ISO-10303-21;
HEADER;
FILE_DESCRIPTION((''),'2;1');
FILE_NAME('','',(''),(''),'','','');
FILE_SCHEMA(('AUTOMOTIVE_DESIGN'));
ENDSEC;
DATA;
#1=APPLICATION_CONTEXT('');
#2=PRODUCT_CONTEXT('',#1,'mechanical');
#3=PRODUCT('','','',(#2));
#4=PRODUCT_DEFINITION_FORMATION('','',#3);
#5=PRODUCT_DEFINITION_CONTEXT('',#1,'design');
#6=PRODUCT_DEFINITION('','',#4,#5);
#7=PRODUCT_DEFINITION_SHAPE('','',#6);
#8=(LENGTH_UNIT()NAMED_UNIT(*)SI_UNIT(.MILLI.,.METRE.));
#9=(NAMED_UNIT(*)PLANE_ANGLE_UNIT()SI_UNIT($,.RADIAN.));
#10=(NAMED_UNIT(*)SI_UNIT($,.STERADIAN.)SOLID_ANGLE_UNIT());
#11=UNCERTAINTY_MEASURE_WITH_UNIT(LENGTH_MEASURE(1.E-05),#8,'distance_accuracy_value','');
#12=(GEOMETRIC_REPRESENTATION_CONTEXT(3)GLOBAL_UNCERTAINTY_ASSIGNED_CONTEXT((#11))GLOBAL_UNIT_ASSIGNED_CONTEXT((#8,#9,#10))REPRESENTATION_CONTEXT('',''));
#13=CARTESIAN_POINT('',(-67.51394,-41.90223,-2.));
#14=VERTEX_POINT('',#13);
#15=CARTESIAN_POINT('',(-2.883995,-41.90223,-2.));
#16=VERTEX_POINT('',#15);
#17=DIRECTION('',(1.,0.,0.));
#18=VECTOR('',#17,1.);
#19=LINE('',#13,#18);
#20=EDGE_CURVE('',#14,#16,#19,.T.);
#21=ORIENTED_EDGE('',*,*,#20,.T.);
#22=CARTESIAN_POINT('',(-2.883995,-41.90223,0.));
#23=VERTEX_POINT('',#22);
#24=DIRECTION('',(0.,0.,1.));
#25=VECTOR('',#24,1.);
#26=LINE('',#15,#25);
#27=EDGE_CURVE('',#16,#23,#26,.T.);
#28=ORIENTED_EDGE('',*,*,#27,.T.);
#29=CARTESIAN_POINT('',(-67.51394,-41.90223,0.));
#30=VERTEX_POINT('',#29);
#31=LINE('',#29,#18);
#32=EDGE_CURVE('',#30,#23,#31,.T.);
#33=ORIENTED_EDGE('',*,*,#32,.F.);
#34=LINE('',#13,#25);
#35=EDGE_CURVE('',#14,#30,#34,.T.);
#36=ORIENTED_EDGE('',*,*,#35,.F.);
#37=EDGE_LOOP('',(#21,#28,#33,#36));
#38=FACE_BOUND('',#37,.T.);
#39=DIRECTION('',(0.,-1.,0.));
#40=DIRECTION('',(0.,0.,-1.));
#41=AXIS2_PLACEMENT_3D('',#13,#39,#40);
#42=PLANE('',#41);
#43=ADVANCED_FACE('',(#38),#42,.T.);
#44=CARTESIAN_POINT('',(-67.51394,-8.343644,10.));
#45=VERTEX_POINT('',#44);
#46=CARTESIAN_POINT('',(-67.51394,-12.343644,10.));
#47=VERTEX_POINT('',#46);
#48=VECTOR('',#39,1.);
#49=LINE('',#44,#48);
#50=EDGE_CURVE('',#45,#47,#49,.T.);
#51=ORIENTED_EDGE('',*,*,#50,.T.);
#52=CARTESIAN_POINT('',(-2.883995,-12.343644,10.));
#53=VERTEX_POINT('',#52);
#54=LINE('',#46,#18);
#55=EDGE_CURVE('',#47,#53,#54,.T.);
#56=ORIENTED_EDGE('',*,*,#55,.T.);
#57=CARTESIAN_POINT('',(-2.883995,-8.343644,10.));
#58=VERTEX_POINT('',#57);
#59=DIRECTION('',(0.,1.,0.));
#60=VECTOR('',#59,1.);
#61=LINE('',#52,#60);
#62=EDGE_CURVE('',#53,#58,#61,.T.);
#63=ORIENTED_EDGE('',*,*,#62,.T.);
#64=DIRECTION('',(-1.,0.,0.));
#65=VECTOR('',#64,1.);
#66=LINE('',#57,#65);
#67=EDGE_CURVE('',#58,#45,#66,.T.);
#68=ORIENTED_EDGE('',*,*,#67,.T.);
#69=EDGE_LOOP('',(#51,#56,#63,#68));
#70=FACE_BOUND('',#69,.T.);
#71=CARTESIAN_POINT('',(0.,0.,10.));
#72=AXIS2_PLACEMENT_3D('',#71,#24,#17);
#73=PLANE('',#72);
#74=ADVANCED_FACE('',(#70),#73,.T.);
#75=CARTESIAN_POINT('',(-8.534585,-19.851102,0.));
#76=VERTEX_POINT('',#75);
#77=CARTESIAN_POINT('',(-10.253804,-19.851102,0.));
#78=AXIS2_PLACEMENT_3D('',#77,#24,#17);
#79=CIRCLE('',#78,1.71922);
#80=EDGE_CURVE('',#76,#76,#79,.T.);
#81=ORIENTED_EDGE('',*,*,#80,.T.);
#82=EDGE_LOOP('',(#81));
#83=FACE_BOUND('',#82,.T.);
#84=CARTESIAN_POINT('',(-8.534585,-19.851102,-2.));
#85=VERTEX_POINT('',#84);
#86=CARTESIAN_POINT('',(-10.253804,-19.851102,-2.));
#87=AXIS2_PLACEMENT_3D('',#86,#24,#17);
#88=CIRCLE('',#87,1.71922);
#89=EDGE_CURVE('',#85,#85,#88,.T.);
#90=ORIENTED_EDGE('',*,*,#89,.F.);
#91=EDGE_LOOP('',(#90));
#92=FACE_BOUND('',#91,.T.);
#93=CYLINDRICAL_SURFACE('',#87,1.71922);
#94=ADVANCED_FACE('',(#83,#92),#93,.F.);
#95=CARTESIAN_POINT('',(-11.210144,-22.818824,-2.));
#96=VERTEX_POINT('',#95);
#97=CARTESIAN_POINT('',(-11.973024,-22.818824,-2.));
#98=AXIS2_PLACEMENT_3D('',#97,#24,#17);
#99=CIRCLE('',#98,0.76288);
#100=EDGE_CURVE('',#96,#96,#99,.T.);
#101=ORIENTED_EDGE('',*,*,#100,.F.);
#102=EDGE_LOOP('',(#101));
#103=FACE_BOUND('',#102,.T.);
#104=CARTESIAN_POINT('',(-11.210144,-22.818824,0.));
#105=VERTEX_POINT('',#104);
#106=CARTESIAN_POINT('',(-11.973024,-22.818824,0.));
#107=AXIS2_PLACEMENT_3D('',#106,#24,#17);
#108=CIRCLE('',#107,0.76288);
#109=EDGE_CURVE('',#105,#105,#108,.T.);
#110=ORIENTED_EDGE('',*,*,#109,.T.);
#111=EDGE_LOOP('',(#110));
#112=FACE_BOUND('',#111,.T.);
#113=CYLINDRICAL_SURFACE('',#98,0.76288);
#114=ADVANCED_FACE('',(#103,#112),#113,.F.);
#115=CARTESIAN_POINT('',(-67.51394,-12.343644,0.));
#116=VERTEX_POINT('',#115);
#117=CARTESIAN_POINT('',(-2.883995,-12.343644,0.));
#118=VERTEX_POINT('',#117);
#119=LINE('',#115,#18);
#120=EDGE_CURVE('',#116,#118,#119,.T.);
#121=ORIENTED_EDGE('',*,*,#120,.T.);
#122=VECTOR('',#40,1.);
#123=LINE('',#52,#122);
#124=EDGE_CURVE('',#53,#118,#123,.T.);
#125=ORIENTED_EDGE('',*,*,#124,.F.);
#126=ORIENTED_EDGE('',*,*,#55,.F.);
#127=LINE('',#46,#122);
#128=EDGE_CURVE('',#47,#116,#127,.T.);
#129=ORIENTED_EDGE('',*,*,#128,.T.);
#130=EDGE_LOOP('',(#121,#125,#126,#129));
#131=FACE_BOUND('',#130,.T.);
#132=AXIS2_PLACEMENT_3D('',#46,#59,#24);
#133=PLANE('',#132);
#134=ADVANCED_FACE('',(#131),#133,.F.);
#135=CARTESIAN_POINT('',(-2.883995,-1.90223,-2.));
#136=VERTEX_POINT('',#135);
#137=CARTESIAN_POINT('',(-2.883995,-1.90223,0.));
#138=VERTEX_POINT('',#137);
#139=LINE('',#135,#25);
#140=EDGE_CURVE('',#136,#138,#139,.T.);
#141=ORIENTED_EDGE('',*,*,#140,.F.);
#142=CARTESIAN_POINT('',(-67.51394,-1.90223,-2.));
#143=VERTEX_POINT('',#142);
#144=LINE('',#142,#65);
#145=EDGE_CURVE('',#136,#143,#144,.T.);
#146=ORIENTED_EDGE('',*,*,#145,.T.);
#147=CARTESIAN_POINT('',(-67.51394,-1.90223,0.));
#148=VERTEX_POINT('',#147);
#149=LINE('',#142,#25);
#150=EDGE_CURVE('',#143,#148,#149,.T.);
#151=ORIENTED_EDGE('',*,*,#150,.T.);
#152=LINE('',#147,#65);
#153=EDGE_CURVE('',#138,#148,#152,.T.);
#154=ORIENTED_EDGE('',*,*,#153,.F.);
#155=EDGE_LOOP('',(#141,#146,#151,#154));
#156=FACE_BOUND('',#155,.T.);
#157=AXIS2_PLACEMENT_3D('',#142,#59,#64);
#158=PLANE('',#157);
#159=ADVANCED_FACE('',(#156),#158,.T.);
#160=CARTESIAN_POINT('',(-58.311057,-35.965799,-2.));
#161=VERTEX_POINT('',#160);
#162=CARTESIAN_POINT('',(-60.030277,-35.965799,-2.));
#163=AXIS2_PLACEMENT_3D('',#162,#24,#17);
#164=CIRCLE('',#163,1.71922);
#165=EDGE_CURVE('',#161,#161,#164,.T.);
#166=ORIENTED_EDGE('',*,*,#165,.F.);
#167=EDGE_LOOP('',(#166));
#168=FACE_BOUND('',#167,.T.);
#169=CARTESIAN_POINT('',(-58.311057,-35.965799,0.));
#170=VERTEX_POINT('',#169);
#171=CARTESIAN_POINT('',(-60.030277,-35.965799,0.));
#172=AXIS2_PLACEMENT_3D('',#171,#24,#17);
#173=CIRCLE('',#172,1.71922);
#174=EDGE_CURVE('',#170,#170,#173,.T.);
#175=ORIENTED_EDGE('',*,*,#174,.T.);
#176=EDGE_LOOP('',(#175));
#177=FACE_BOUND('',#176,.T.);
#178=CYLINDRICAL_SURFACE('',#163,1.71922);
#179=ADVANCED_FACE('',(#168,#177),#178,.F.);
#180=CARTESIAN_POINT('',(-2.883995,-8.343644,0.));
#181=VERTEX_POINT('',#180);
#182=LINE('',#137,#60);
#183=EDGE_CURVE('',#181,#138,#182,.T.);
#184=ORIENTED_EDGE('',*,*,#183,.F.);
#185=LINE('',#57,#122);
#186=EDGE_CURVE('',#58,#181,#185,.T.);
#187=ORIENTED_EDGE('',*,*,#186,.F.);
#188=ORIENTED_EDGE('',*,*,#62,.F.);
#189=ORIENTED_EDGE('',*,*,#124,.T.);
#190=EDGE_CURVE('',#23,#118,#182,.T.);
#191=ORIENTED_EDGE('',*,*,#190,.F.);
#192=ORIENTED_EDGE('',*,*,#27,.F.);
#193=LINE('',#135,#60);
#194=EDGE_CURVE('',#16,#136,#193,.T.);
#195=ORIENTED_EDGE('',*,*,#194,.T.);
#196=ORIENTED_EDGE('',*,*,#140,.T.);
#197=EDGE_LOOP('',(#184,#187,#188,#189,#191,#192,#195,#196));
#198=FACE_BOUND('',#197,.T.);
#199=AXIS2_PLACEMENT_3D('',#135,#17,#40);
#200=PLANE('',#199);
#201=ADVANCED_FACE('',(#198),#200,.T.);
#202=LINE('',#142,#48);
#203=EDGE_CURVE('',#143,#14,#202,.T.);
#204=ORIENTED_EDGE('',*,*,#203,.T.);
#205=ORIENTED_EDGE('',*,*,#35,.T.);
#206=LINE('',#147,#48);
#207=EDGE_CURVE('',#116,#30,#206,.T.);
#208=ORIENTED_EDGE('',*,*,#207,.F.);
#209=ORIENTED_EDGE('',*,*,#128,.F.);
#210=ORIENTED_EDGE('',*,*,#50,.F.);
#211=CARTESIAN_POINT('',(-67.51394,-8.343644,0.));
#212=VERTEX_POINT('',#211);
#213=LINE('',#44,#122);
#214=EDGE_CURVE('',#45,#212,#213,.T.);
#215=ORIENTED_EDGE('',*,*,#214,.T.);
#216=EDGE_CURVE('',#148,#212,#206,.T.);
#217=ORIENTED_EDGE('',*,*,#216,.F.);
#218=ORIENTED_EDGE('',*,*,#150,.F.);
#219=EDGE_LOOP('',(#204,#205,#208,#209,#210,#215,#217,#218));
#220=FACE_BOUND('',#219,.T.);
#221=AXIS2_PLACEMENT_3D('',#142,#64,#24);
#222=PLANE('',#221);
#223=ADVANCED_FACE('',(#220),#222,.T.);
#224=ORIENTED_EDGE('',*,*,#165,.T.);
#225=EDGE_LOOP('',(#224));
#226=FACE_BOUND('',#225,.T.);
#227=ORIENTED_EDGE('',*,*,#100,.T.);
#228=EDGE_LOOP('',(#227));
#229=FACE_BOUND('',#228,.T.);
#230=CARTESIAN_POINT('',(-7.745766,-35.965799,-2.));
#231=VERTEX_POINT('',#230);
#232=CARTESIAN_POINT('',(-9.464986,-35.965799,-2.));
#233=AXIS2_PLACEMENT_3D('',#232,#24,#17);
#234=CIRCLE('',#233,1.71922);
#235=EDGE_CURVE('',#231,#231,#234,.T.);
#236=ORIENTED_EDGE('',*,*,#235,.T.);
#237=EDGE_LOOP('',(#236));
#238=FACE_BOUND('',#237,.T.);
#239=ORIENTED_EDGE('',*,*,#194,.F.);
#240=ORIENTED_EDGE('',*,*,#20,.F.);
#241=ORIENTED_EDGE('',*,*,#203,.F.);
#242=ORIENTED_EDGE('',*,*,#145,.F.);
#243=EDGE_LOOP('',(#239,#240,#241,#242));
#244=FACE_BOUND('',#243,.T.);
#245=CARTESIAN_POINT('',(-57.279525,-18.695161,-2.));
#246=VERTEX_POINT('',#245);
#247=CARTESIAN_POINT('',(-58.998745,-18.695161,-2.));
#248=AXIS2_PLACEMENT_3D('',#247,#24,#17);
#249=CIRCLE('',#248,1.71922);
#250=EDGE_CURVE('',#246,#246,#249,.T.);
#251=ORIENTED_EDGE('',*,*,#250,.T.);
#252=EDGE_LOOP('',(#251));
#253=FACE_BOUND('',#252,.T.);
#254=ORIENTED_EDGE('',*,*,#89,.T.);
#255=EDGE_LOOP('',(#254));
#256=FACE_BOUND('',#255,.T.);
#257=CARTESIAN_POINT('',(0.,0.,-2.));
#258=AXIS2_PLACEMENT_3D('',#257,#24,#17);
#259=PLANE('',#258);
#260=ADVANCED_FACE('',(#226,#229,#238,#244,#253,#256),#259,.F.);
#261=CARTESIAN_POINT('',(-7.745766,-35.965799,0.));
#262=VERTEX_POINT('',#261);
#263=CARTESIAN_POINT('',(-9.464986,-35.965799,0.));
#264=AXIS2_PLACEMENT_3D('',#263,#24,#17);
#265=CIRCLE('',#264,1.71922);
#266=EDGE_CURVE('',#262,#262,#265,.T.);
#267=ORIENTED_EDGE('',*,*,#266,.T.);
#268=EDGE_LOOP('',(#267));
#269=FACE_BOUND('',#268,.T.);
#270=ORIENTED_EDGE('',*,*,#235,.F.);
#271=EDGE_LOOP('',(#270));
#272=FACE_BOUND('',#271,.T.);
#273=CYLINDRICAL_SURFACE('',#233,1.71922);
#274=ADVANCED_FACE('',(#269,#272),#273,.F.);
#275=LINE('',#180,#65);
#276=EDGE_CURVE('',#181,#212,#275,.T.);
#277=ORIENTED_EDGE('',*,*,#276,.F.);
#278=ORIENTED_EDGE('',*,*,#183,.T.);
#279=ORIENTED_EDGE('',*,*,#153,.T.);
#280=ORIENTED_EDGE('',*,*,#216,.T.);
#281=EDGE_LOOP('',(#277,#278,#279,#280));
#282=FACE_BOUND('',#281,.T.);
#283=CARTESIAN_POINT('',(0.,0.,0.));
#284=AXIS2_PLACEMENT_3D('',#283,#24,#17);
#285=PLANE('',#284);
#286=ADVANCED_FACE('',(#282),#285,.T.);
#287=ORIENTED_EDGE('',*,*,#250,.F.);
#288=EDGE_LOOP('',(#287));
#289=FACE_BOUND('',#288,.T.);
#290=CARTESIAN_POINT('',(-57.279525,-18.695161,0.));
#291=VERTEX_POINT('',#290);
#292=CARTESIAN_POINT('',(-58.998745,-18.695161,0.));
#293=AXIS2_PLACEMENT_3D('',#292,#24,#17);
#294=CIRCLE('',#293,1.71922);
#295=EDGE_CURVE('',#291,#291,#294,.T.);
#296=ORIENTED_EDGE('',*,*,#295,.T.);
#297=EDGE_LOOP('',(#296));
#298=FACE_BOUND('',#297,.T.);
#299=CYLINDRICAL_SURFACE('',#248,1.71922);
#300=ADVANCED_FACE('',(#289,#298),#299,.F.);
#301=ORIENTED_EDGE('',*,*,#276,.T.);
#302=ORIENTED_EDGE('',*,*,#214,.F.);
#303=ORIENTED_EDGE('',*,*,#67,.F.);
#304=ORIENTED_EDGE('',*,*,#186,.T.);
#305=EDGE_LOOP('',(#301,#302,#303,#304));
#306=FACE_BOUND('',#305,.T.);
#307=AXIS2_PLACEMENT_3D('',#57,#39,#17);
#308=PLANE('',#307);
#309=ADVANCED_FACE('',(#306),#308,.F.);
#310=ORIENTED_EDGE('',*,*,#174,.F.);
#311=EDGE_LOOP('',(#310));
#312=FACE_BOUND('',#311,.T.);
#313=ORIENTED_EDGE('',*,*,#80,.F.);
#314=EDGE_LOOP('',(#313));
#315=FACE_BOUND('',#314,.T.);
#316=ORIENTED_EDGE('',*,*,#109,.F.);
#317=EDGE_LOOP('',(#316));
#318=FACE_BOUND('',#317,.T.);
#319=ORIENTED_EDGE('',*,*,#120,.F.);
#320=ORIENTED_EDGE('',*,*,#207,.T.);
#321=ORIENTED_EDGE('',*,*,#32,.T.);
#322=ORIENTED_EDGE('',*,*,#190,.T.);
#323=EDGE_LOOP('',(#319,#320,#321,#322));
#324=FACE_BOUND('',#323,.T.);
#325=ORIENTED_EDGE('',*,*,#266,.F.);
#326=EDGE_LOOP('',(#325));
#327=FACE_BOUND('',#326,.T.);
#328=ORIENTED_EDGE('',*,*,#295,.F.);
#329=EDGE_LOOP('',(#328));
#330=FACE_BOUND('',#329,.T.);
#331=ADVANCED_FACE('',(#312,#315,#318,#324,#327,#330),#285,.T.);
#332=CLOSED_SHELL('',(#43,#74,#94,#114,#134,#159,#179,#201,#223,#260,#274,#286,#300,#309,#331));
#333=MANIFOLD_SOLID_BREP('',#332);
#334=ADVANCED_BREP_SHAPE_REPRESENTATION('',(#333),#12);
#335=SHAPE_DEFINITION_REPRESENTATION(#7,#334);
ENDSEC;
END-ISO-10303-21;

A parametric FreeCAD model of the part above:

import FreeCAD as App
import Part
import Sketcher
Q = App.Units.Quantity


def add_polygon(sketch, points):
    """Adds a closed chain of lines whose ends are joined by coincident constraints."""
    first, n = sketch.GeometryCount, len(points)
    for a, b in zip(points, points[1:] + points[:1]):
        sketch.addGeometry(Part.LineSegment(App.Vector(*a, 0), App.Vector(*b, 0)), False)
    for i in range(n):
        sketch.addConstraint(Sketcher.Constraint("Coincident", first + i, 2, first + (i + 1) % n, 1))

doc = App.newDocument("Part")
body = doc.addObject("PartDesign::Body", "Body")

sketch1 = body.newObject("Sketcher::SketchObject", "Sketch")
sketch1.AttachmentSupport = (doc.getObject("XY_Plane"), [""])
sketch1.MapMode = "FlatFace"
add_polygon(sketch1, [(-67.5, -1.9), (-67.5, -41.9), (-2.9, -41.9), (-2.9, -1.9)])
sketch1.addGeometry(Part.Circle(App.Vector(-60, -36, 0), App.Vector(0, 0, 1), 1.7), False)
sketch1.addGeometry(Part.Circle(App.Vector(-9.5, -36, 0), App.Vector(0, 0, 1), 1.7), False)
sketch1.addGeometry(Part.Circle(App.Vector(-59, -18.7, 0), App.Vector(0, 0, 1), 1.7), False)
sketch1.addGeometry(Part.Circle(App.Vector(-12, -22.8, 0), App.Vector(0, 0, 1), 0.8), False)
sketch1.addGeometry(Part.Circle(App.Vector(-10.3, -19.9, 0), App.Vector(0, 0, 1), 1.7), False)
sketch1.addConstraint([
    Sketcher.Constraint("Vertical", 0),
    Sketcher.Constraint("Horizontal", 1),
    Sketcher.Constraint("Vertical", 2),
    Sketcher.Constraint("Horizontal", 3),
    Sketcher.Constraint("Equal", 4, 5),
    Sketcher.Constraint("Equal", 5, 6),
    Sketcher.Constraint("Equal", 6, 8),
    Sketcher.Constraint("Horizontal", 4, 3, 5, 3),
    Sketcher.Constraint("DistanceY", 0, 2, 0, 1, Q("40 mm")),
    Sketcher.Constraint("Diameter", 4, Q("3.43844 mm")),
    Sketcher.Constraint("Diameter", 7, Q("1.52576 mm")),
    Sketcher.Constraint("DistanceY", 4, 3, -1, 1, Q("35.965799 mm")),
    Sketcher.Constraint("DistanceX", 1, 1, 1, 2, Q("64.629945 mm")),
    Sketcher.Constraint("DistanceY", 6, 3, -1, 1, Q("18.695161 mm")),
    Sketcher.Constraint("DistanceX", 0, 2, -1, 1, Q("67.51394 mm")),
    Sketcher.Constraint("DistanceY", 0, 2, -1, 1, Q("41.90223 mm")),
    Sketcher.Constraint("DistanceX", 4, 3, 5, 3, Q("50.565291 mm")),
    Sketcher.Constraint("DistanceX", 4, 3, 6, 3, Q("1.031532 mm")),
    Sketcher.Constraint("DistanceX", 7, 3, 5, 3, Q("2.508038 mm")),
    Sketcher.Constraint("DistanceX", 7, 3, 8, 3, Q("1.71922 mm")),
    Sketcher.Constraint("DistanceY", 7, 3, 8, 3, Q("2.967721 mm")),
    Sketcher.Constraint("DistanceY", 8, 3, 6, 3, Q("1.155941 mm")),
    Sketcher.Constraint("DistanceX", 5, 3, 1, 2, Q("6.580991 mm")),
])
pad1 = body.newObject("PartDesign::Pad", "Pad")
pad1.Profile = sketch1
pad1.Length = 2
pad1.Reversed = True

sketch2 = body.newObject("Sketcher::SketchObject", "Sketch001")
sketch2.AttachmentSupport = (doc.getObject("XY_Plane"), [""])
sketch2.MapMode = "FlatFace"
add_polygon(sketch2, [(-67.5, -8.3), (-67.5, -12.3), (-2.9, -12.3), (-2.9, -8.3)])
sketch2.addConstraint([
    Sketcher.Constraint("Vertical", 0),
    Sketcher.Constraint("Horizontal", 1),
    Sketcher.Constraint("Vertical", 2),
    Sketcher.Constraint("Horizontal", 3),
    Sketcher.Constraint("DistanceY", 0, 2, 0, 1, Q("4 mm")),
    Sketcher.Constraint("DistanceX", 1, 1, 1, 2, Q("64.629945 mm")),
    Sketcher.Constraint("DistanceX", 0, 2, -1, 1, Q("67.51394 mm")),
    Sketcher.Constraint("DistanceY", 0, 2, -1, 1, Q("12.343644 mm")),
])
pad2 = body.newObject("PartDesign::Pad", "Pad001")
pad2.Profile = sketch2
pad2.Length = 10

doc.recompute()
